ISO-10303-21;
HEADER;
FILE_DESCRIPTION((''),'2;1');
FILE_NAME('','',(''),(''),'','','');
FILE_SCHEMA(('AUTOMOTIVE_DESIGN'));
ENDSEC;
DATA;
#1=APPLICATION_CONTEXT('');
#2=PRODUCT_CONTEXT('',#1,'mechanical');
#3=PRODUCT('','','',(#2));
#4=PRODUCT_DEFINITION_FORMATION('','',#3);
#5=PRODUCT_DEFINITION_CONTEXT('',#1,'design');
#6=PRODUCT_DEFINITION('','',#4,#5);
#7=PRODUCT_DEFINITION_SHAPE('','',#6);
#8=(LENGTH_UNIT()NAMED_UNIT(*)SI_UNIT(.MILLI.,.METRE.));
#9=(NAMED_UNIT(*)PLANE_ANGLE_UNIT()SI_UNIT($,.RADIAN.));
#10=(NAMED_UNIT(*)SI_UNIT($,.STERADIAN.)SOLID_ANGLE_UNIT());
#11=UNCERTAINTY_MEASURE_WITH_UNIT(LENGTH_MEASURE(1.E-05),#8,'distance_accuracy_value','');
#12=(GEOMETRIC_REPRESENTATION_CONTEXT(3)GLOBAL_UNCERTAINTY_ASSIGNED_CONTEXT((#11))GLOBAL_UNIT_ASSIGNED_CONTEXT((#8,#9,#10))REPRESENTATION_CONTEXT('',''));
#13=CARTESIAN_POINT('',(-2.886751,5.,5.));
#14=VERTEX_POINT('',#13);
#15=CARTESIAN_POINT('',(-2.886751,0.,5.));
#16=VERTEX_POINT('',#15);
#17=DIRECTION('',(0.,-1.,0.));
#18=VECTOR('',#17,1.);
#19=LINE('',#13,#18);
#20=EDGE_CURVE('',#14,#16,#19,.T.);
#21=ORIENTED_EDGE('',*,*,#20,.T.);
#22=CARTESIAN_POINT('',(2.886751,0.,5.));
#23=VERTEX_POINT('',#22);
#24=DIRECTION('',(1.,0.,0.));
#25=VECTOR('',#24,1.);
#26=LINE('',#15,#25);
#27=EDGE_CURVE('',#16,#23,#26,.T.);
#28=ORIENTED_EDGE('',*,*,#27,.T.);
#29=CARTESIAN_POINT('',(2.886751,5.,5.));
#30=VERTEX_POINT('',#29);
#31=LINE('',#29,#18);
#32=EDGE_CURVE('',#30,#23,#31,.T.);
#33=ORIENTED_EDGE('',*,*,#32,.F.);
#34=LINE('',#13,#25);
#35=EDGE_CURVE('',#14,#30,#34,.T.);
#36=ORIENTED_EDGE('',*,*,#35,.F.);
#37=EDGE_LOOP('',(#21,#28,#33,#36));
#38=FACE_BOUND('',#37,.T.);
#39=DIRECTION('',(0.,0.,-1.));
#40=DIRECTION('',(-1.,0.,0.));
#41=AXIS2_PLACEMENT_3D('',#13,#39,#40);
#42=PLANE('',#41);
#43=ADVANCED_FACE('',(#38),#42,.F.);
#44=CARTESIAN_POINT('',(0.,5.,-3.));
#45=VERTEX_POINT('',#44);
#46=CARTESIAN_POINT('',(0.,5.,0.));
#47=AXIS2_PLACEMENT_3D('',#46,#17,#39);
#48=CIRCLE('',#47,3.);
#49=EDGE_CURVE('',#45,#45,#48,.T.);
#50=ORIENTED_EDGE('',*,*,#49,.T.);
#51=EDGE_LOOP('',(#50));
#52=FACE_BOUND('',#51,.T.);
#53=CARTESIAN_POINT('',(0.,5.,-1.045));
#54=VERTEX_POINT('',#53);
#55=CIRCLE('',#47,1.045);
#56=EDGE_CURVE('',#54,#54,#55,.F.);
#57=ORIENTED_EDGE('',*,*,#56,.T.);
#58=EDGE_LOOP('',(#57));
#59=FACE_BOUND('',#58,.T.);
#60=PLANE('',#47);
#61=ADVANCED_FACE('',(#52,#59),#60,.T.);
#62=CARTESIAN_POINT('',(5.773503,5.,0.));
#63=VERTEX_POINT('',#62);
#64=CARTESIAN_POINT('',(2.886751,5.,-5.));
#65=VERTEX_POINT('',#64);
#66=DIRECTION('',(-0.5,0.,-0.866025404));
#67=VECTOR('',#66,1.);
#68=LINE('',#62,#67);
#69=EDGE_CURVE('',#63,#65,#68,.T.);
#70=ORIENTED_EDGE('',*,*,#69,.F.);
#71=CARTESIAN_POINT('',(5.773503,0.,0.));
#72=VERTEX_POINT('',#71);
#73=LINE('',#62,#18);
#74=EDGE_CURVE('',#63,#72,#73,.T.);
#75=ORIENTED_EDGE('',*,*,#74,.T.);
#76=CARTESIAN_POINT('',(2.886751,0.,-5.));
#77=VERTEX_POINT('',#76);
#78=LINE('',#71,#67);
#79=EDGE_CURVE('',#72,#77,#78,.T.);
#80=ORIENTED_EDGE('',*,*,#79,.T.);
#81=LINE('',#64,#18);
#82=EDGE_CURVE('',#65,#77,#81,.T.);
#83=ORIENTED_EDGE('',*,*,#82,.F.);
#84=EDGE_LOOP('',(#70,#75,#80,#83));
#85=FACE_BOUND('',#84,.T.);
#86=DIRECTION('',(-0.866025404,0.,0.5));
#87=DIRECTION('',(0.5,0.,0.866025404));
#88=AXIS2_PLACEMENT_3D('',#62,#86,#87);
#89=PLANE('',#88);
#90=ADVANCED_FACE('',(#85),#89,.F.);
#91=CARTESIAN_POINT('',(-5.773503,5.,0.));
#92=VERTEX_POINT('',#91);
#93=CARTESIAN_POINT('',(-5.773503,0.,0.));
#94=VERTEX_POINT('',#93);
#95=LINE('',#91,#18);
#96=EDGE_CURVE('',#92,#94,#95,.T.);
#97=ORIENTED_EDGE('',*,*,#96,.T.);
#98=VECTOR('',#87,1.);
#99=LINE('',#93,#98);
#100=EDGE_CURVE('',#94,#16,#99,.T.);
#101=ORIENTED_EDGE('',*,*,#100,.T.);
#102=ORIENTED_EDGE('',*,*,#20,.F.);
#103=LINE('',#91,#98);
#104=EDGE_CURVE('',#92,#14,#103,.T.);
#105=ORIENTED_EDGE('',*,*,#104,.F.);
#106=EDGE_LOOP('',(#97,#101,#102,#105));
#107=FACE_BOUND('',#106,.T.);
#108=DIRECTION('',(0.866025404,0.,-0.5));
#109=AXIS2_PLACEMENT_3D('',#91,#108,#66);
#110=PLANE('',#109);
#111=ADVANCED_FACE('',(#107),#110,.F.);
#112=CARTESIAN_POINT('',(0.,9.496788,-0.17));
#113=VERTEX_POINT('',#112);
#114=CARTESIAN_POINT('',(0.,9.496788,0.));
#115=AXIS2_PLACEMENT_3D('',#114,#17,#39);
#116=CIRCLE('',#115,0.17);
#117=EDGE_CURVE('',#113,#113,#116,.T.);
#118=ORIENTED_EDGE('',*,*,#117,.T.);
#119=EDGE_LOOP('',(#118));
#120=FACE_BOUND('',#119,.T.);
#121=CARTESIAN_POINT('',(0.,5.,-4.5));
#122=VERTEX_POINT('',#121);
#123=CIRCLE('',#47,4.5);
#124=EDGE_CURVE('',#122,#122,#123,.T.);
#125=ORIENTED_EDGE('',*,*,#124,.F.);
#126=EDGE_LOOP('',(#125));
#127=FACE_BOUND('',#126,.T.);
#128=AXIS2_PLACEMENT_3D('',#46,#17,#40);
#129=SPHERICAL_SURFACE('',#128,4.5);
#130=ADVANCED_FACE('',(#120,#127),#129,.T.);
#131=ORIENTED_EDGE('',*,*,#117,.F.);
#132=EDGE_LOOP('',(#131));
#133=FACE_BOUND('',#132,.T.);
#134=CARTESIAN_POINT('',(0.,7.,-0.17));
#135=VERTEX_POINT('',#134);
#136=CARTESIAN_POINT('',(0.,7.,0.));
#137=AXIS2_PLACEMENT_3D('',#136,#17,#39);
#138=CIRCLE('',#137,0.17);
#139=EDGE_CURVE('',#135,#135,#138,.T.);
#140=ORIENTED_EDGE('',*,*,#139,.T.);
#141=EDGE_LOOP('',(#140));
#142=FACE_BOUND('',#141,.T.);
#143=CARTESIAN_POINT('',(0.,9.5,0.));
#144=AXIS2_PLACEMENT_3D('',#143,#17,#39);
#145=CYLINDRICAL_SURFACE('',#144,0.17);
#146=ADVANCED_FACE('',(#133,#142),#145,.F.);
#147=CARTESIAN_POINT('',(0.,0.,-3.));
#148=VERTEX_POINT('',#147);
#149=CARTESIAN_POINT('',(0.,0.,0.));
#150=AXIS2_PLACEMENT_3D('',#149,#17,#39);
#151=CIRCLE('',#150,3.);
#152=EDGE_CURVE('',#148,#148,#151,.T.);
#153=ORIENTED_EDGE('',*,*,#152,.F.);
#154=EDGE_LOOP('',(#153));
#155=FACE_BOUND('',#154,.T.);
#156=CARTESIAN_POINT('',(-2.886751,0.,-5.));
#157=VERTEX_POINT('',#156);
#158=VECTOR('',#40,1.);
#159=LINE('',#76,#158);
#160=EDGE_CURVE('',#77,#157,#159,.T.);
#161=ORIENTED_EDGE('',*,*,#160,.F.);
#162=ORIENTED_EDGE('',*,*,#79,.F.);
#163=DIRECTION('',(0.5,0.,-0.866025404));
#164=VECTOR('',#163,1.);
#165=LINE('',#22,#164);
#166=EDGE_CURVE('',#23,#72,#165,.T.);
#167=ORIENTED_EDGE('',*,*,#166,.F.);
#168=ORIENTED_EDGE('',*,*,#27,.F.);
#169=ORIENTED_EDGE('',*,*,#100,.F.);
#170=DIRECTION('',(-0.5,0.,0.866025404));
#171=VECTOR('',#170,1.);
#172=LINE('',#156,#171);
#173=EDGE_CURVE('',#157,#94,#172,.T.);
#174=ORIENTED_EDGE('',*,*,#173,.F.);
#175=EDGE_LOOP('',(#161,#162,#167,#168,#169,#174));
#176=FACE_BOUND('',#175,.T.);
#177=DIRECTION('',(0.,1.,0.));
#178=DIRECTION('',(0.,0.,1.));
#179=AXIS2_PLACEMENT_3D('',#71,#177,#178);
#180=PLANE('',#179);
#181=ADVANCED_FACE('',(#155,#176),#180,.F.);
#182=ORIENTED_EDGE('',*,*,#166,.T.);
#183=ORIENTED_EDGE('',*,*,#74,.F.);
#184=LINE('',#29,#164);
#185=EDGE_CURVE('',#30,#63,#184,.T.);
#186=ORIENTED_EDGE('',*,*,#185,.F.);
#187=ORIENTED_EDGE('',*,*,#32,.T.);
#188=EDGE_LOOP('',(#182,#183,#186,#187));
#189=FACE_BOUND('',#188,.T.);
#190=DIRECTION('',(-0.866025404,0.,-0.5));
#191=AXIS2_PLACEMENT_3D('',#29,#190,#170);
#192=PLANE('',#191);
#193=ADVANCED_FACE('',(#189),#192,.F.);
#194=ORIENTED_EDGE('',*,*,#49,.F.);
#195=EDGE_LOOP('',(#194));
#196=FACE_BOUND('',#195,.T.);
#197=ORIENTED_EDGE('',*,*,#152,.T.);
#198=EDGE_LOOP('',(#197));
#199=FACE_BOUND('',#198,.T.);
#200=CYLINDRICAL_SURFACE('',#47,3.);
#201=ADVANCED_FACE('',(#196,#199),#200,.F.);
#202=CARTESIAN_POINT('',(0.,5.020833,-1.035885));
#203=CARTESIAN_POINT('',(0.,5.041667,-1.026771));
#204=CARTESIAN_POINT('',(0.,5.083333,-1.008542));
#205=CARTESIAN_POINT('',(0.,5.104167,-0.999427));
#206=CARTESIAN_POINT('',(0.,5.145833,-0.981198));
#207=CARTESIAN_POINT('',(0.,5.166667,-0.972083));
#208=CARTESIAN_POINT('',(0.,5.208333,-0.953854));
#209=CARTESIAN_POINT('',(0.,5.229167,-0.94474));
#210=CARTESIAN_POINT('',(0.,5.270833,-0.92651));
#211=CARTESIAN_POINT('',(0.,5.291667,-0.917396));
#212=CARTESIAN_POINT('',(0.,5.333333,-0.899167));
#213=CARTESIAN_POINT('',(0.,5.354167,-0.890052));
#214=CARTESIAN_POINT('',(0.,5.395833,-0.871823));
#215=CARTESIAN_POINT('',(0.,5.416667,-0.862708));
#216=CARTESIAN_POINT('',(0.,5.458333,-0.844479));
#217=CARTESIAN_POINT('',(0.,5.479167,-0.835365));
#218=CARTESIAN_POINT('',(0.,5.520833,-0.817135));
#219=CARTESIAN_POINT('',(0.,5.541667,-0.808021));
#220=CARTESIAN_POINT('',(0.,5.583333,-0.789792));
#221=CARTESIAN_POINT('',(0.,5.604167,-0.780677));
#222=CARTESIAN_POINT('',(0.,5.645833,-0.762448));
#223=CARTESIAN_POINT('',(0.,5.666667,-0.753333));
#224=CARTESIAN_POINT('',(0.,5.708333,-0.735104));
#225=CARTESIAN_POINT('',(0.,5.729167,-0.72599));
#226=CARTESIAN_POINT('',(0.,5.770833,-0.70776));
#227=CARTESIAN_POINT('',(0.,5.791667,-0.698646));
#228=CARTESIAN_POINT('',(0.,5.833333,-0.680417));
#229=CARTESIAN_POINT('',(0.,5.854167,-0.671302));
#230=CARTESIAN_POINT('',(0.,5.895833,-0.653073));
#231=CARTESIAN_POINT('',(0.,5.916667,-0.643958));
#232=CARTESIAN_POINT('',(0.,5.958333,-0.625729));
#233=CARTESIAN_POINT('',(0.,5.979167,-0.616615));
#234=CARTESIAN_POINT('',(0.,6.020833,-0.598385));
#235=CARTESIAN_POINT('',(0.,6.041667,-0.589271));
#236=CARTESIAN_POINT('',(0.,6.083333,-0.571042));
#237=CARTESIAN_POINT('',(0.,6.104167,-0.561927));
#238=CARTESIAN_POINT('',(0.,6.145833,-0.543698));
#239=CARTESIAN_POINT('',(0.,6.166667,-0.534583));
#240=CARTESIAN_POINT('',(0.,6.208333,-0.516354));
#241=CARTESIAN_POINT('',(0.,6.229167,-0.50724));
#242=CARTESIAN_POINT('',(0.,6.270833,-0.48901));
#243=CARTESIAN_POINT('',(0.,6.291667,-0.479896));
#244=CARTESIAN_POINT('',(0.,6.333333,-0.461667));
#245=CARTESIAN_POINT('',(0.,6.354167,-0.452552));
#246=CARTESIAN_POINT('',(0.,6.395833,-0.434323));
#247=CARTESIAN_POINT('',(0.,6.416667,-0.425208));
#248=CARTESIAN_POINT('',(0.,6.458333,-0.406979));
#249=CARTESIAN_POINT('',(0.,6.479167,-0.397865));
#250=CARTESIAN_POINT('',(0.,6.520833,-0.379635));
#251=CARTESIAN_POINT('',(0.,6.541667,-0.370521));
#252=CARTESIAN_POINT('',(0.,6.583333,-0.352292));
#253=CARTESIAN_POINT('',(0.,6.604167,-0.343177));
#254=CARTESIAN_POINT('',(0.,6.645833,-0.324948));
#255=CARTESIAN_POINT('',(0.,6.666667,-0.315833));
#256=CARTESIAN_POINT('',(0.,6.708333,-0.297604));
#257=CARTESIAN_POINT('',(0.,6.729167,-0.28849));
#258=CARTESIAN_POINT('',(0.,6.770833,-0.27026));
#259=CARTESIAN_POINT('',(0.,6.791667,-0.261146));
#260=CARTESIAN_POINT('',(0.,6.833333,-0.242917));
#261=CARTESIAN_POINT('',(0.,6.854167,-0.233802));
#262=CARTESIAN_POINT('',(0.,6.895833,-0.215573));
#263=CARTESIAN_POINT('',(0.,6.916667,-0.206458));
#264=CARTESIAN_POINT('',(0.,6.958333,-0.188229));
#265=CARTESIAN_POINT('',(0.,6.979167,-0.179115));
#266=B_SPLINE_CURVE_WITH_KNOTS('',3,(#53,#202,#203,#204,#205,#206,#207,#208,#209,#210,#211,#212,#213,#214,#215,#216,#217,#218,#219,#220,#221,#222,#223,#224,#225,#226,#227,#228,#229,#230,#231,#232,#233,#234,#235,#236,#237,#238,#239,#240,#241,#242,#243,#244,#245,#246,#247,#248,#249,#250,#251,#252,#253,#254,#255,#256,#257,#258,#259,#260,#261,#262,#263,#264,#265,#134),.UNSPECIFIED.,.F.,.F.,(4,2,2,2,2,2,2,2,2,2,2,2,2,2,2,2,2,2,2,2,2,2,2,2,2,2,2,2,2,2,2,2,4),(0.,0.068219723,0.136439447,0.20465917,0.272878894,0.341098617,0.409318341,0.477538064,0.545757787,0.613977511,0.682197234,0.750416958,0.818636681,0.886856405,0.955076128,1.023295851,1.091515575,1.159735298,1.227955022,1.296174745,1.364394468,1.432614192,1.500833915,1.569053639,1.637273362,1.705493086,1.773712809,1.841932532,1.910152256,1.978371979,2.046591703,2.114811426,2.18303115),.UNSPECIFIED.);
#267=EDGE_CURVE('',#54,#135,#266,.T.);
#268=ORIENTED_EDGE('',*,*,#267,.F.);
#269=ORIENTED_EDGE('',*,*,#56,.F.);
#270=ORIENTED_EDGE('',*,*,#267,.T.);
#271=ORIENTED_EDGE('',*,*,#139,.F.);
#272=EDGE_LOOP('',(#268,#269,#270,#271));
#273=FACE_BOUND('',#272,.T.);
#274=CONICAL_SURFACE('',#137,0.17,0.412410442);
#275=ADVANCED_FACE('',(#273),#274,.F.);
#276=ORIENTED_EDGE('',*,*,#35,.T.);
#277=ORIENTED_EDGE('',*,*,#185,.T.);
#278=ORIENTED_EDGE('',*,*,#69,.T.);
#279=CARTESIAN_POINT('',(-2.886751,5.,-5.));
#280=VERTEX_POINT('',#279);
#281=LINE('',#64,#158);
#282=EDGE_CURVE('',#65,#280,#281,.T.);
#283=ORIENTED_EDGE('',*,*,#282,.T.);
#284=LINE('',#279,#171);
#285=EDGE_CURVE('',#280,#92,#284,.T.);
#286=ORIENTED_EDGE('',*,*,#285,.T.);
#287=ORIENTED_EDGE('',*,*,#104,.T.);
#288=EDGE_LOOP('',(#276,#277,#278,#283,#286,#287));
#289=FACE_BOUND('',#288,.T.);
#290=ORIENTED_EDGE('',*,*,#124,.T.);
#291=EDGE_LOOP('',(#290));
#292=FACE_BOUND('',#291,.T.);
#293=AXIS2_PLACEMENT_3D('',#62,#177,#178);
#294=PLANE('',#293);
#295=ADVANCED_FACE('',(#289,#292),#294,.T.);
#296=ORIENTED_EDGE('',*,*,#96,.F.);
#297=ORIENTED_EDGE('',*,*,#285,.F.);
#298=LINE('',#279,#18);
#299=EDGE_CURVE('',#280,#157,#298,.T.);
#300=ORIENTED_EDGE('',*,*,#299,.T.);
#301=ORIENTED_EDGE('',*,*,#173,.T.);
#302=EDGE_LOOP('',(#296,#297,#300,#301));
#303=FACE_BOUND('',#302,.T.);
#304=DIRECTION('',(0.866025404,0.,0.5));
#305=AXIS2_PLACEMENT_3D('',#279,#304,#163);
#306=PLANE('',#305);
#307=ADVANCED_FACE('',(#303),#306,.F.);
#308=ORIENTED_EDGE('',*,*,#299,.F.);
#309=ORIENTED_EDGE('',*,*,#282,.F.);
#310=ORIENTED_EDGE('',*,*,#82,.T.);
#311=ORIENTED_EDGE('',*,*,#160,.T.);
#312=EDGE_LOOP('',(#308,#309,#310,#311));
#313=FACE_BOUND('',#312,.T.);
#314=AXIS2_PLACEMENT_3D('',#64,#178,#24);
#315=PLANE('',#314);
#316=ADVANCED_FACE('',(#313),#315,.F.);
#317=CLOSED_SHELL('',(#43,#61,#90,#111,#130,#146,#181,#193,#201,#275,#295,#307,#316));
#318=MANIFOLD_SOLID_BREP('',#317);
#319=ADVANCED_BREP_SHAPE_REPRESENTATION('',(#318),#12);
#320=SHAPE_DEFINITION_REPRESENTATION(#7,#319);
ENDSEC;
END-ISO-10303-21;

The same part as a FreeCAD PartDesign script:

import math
import FreeCAD as App
import Part
import Sketcher
Q = App.Units.Quantity


def edges_at(feature, points):
    """Names of the edges that pass closest to the given points."""
    edges = feature.Shape.Edges
    near = lambda p: min(range(len(edges)), key=lambda i: edges[i].distToShape(Part.Vertex(*p))[0])
    return sorted({f"Edge{near(p) + 1}" for p in points})

doc = App.newDocument("Part")
params = doc.addObject("Spreadsheet::Sheet", "Params")
for row, (alias, value) in enumerate([
    ("pad1_length", "5 mm"),
    ("sketch2_radius", "4.5 mm"),
    ("revolution_angle", "360 deg"),
    ("sketch3_diameter", "6 mm"),
    ("pocket1_length", "5 mm"),
    ("sketch4_diameter", "0.34 mm"),
    ("chamfer_size", "0.875 mm"),
    ("chamfer_size2", "2 mm"),
], start=1):
    params.set(f"A{row}", alias)
    params.set(f"B{row}", "=" + value)
    params.setAlias(f"B{row}", alias)

body = doc.addObject("PartDesign::Body", "Body")

sketch1 = doc.addObject("Sketcher::SketchObject", "Sketch")
body.addObject(sketch1)
sketch1.AttachmentSupport = (doc.XZ_Plane, [""])
sketch1.MapMode = "FlatFace"
sketch1.addGeometry([
    Part.LineSegment(App.Vector(5.773503, 0, 0), App.Vector(2.886751, -5, 0)),
    Part.LineSegment(App.Vector(2.886751, -5, 0), App.Vector(-2.886751, -5, 0)),
    Part.LineSegment(App.Vector(-2.886751, -5, 0), App.Vector(-5.773503, 0, 0)),
    Part.LineSegment(App.Vector(-5.773503, 0, 0), App.Vector(-2.886751, 5, 0)),
    Part.LineSegment(App.Vector(-2.886751, 5, 0), App.Vector(2.886751, 5, 0)),
    Part.LineSegment(App.Vector(2.886751, 5, 0), App.Vector(5.773503, 0, 0)),
], False)
sketch1.addConstraint([
    Sketcher.Constraint("Coincident", 0, 2, 1, 1),
    Sketcher.Constraint("Coincident", 1, 2, 2, 1),
    Sketcher.Constraint("Coincident", 2, 2, 3, 1),
    Sketcher.Constraint("Coincident", 3, 2, 4, 1),
    Sketcher.Constraint("Coincident", 4, 2, 5, 1),
    Sketcher.Constraint("Coincident", 5, 2, 0, 1),
    Sketcher.Constraint("Horizontal", 1),
    Sketcher.Constraint("Horizontal", 4),
    Sketcher.Constraint("Symmetric", 0, 2, 3, 2, -1, 1),
    Sketcher.Constraint("Symmetric", 2, 2, 5, 2, -1, 1),
    Sketcher.Constraint("PointOnObject", 2, 2, -1),
    Sketcher.Constraint("Parallel", 2, 5),
    Sketcher.Constraint("Vertical", 1, 2, 3, 2),
    Sketcher.Constraint("Angle", 0, Q("-120 deg")),
    Sketcher.Constraint("DistanceY", 0, 2, -1, 1, Q("5 mm")),
    Sketcher.Constraint("DistanceX", 1, 2, 1, 1, Q("5.773503 mm")),
])
pad1 = doc.addObject("PartDesign::Pad", "Pad")
body.addObject(pad1)
pad1.Profile = sketch1
pad1.setExpression("Length", "Params.pad1_length")
pad1.Reversed = True

sketch2 = doc.addObject("Sketcher::SketchObject", "Sketch001")
body.addObject(sketch2)
sketch2.AttachmentSupport = (doc.XY_Plane, [""])
sketch2.MapMode = "FlatFace"
sketch2.addGeometry([
    Part.LineSegment(App.Vector(-4.5, 5, 0), App.Vector(0, 5, 0)),
    Part.LineSegment(App.Vector(0, 5, 0), App.Vector(0, 9.5, 0)),
    Part.ArcOfCircle(Part.Circle(App.Vector(0, 5, 0), App.Vector(0, 0, 1), 4.5), math.radians(90), math.radians(180)),
], False)
sketch2.addConstraint([
    Sketcher.Constraint("Coincident", 0, 2, 1, 1),
    Sketcher.Constraint("Coincident", 1, 2, 2, 1),
    Sketcher.Constraint("Coincident", 2, 2, 0, 1),
    Sketcher.Constraint("Horizontal", 0),
    Sketcher.Constraint("Vertical", 1),
    Sketcher.Constraint("Coincident", 0, 2, 2, 3),
    Sketcher.Constraint("PointOnObject", 2, 3, -2),
    Sketcher.Constraint("Radius", 2, Q("4.5 mm")),
    Sketcher.Constraint("DistanceY", -1, 1, 2, 3, Q("5 mm")),
])
sketch2.setExpression("Constraints[7]", "Params.sketch2_radius")
revolution = doc.addObject("PartDesign::Revolution", "Revolution")
body.addObject(revolution)
revolution.Profile = sketch2
revolution.ReferenceAxis = (sketch2, ["V_Axis"])
revolution.setExpression("Angle", "Params.revolution_angle")

sketch3 = doc.addObject("Sketcher::SketchObject", "Sketch002")
body.addObject(sketch3)
sketch3.AttachmentSupport = (doc.XZ_Plane, [""])
sketch3.MapMode = "FlatFace"
sketch3.addGeometry(Part.Circle(App.Vector(0, 0, 0), App.Vector(0, 0, 1), 3), False)
sketch3.addConstraint([
    Sketcher.Constraint("Coincident", 0, 3, -1, 1),
    Sketcher.Constraint("Diameter", 0, Q("6 mm")),
])
sketch3.setExpression("Constraints[1]", "Params.sketch3_diameter")
pocket1 = doc.addObject("PartDesign::Pocket", "Pocket")
body.addObject(pocket1)
pocket1.Profile = sketch3
pocket1.setExpression("Length", "Params.pocket1_length")

sketch4 = doc.addObject("Sketcher::SketchObject", "Sketch003")
body.addObject(sketch4)
sketch4.AttachmentSupport = (doc.XZ_Plane, [""])
sketch4.MapMode = "FlatFace"
sketch4.AttachmentOffset = App.Placement(App.Vector(0, 0, -5), App.Rotation())
sketch4.addGeometry(Part.Circle(App.Vector(0, 0, 0), App.Vector(0, 0, 1), 0.17), False)
sketch4.addConstraint([
    Sketcher.Constraint("Coincident", 0, 3, -1, 1),
    Sketcher.Constraint("Diameter", 0, Q("0.34 mm")),
])
sketch4.setExpression("Constraints[1]", "Params.sketch4_diameter")
pocket2 = doc.addObject("PartDesign::Pocket", "Pocket001")
body.addObject(pocket2)
pocket2.Profile = sketch4
pocket2.Type = "ThroughAll"
doc.recompute()

chamfer = doc.addObject("PartDesign::Chamfer", "Chamfer")
body.addObject(chamfer)
chamfer.Base = (pocket2, edges_at(pocket2, [(0, 5, 0.17)]))
chamfer.ChamferType = "Two distances"
chamfer.setExpression("Size", "Params.chamfer_size")
chamfer.setExpression("Size2", "Params.chamfer_size2")
chamfer.FlipDirection = True

doc.recompute()
